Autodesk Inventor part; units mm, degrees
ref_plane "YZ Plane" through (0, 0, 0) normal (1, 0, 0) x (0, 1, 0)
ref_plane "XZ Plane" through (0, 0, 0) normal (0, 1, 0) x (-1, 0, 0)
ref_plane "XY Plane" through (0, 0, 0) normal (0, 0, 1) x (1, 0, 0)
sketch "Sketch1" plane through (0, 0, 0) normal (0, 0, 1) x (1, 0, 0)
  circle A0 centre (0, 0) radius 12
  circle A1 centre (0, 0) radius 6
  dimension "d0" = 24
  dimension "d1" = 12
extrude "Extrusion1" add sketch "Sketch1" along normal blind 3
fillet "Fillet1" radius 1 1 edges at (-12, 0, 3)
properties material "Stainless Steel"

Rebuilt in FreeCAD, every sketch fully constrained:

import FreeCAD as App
import Part
import Sketcher


def edges_at(feature, points):
    """Names of the edges that pass closest to the given points."""
    edges = feature.Shape.Edges
    near = lambda p: min(range(len(edges)), key=lambda i: edges[i].distToShape(Part.Vertex(*p))[0])
    return sorted({f"Edge{near(p) + 1}" for p in points})

doc = App.newDocument("Part")
body = doc.addObject("PartDesign::Body", "Body")

# Sketch on XY plane
sketch1 = body.newObject("Sketcher::SketchObject", "Sketch")
sketch1.AttachmentSupport = (doc.getObject("XY_Plane"), [""])
sketch1.MapMode = "FlatFace"
sketch1.addGeometry([
    Part.Circle(App.Vector(0, 0, 0), App.Vector(0, 0, 1), 12),
    Part.Circle(App.Vector(0, 0, 0), App.Vector(0, 0, 1), 6),
], False)
sketch1.addConstraint([
    Sketcher.Constraint("Coincident", 0, 3, -1, 1),
    Sketcher.Constraint("Coincident", 1, 3, -1, 1),
    Sketcher.Constraint("Diameter", 0, 24.0),
    Sketcher.Constraint("Diameter", 1, 12.0),
])
pad1 = body.newObject("PartDesign::Pad", "Pad")
pad1.Profile = sketch1
pad1.Length = 3
doc.recompute()

fillet = body.newObject("PartDesign::Fillet", "Fillet")
fillet.Base = (pad1, edges_at(pad1, [(-12, 0, 3)]))
fillet.Radius = 1

doc.recompute()
